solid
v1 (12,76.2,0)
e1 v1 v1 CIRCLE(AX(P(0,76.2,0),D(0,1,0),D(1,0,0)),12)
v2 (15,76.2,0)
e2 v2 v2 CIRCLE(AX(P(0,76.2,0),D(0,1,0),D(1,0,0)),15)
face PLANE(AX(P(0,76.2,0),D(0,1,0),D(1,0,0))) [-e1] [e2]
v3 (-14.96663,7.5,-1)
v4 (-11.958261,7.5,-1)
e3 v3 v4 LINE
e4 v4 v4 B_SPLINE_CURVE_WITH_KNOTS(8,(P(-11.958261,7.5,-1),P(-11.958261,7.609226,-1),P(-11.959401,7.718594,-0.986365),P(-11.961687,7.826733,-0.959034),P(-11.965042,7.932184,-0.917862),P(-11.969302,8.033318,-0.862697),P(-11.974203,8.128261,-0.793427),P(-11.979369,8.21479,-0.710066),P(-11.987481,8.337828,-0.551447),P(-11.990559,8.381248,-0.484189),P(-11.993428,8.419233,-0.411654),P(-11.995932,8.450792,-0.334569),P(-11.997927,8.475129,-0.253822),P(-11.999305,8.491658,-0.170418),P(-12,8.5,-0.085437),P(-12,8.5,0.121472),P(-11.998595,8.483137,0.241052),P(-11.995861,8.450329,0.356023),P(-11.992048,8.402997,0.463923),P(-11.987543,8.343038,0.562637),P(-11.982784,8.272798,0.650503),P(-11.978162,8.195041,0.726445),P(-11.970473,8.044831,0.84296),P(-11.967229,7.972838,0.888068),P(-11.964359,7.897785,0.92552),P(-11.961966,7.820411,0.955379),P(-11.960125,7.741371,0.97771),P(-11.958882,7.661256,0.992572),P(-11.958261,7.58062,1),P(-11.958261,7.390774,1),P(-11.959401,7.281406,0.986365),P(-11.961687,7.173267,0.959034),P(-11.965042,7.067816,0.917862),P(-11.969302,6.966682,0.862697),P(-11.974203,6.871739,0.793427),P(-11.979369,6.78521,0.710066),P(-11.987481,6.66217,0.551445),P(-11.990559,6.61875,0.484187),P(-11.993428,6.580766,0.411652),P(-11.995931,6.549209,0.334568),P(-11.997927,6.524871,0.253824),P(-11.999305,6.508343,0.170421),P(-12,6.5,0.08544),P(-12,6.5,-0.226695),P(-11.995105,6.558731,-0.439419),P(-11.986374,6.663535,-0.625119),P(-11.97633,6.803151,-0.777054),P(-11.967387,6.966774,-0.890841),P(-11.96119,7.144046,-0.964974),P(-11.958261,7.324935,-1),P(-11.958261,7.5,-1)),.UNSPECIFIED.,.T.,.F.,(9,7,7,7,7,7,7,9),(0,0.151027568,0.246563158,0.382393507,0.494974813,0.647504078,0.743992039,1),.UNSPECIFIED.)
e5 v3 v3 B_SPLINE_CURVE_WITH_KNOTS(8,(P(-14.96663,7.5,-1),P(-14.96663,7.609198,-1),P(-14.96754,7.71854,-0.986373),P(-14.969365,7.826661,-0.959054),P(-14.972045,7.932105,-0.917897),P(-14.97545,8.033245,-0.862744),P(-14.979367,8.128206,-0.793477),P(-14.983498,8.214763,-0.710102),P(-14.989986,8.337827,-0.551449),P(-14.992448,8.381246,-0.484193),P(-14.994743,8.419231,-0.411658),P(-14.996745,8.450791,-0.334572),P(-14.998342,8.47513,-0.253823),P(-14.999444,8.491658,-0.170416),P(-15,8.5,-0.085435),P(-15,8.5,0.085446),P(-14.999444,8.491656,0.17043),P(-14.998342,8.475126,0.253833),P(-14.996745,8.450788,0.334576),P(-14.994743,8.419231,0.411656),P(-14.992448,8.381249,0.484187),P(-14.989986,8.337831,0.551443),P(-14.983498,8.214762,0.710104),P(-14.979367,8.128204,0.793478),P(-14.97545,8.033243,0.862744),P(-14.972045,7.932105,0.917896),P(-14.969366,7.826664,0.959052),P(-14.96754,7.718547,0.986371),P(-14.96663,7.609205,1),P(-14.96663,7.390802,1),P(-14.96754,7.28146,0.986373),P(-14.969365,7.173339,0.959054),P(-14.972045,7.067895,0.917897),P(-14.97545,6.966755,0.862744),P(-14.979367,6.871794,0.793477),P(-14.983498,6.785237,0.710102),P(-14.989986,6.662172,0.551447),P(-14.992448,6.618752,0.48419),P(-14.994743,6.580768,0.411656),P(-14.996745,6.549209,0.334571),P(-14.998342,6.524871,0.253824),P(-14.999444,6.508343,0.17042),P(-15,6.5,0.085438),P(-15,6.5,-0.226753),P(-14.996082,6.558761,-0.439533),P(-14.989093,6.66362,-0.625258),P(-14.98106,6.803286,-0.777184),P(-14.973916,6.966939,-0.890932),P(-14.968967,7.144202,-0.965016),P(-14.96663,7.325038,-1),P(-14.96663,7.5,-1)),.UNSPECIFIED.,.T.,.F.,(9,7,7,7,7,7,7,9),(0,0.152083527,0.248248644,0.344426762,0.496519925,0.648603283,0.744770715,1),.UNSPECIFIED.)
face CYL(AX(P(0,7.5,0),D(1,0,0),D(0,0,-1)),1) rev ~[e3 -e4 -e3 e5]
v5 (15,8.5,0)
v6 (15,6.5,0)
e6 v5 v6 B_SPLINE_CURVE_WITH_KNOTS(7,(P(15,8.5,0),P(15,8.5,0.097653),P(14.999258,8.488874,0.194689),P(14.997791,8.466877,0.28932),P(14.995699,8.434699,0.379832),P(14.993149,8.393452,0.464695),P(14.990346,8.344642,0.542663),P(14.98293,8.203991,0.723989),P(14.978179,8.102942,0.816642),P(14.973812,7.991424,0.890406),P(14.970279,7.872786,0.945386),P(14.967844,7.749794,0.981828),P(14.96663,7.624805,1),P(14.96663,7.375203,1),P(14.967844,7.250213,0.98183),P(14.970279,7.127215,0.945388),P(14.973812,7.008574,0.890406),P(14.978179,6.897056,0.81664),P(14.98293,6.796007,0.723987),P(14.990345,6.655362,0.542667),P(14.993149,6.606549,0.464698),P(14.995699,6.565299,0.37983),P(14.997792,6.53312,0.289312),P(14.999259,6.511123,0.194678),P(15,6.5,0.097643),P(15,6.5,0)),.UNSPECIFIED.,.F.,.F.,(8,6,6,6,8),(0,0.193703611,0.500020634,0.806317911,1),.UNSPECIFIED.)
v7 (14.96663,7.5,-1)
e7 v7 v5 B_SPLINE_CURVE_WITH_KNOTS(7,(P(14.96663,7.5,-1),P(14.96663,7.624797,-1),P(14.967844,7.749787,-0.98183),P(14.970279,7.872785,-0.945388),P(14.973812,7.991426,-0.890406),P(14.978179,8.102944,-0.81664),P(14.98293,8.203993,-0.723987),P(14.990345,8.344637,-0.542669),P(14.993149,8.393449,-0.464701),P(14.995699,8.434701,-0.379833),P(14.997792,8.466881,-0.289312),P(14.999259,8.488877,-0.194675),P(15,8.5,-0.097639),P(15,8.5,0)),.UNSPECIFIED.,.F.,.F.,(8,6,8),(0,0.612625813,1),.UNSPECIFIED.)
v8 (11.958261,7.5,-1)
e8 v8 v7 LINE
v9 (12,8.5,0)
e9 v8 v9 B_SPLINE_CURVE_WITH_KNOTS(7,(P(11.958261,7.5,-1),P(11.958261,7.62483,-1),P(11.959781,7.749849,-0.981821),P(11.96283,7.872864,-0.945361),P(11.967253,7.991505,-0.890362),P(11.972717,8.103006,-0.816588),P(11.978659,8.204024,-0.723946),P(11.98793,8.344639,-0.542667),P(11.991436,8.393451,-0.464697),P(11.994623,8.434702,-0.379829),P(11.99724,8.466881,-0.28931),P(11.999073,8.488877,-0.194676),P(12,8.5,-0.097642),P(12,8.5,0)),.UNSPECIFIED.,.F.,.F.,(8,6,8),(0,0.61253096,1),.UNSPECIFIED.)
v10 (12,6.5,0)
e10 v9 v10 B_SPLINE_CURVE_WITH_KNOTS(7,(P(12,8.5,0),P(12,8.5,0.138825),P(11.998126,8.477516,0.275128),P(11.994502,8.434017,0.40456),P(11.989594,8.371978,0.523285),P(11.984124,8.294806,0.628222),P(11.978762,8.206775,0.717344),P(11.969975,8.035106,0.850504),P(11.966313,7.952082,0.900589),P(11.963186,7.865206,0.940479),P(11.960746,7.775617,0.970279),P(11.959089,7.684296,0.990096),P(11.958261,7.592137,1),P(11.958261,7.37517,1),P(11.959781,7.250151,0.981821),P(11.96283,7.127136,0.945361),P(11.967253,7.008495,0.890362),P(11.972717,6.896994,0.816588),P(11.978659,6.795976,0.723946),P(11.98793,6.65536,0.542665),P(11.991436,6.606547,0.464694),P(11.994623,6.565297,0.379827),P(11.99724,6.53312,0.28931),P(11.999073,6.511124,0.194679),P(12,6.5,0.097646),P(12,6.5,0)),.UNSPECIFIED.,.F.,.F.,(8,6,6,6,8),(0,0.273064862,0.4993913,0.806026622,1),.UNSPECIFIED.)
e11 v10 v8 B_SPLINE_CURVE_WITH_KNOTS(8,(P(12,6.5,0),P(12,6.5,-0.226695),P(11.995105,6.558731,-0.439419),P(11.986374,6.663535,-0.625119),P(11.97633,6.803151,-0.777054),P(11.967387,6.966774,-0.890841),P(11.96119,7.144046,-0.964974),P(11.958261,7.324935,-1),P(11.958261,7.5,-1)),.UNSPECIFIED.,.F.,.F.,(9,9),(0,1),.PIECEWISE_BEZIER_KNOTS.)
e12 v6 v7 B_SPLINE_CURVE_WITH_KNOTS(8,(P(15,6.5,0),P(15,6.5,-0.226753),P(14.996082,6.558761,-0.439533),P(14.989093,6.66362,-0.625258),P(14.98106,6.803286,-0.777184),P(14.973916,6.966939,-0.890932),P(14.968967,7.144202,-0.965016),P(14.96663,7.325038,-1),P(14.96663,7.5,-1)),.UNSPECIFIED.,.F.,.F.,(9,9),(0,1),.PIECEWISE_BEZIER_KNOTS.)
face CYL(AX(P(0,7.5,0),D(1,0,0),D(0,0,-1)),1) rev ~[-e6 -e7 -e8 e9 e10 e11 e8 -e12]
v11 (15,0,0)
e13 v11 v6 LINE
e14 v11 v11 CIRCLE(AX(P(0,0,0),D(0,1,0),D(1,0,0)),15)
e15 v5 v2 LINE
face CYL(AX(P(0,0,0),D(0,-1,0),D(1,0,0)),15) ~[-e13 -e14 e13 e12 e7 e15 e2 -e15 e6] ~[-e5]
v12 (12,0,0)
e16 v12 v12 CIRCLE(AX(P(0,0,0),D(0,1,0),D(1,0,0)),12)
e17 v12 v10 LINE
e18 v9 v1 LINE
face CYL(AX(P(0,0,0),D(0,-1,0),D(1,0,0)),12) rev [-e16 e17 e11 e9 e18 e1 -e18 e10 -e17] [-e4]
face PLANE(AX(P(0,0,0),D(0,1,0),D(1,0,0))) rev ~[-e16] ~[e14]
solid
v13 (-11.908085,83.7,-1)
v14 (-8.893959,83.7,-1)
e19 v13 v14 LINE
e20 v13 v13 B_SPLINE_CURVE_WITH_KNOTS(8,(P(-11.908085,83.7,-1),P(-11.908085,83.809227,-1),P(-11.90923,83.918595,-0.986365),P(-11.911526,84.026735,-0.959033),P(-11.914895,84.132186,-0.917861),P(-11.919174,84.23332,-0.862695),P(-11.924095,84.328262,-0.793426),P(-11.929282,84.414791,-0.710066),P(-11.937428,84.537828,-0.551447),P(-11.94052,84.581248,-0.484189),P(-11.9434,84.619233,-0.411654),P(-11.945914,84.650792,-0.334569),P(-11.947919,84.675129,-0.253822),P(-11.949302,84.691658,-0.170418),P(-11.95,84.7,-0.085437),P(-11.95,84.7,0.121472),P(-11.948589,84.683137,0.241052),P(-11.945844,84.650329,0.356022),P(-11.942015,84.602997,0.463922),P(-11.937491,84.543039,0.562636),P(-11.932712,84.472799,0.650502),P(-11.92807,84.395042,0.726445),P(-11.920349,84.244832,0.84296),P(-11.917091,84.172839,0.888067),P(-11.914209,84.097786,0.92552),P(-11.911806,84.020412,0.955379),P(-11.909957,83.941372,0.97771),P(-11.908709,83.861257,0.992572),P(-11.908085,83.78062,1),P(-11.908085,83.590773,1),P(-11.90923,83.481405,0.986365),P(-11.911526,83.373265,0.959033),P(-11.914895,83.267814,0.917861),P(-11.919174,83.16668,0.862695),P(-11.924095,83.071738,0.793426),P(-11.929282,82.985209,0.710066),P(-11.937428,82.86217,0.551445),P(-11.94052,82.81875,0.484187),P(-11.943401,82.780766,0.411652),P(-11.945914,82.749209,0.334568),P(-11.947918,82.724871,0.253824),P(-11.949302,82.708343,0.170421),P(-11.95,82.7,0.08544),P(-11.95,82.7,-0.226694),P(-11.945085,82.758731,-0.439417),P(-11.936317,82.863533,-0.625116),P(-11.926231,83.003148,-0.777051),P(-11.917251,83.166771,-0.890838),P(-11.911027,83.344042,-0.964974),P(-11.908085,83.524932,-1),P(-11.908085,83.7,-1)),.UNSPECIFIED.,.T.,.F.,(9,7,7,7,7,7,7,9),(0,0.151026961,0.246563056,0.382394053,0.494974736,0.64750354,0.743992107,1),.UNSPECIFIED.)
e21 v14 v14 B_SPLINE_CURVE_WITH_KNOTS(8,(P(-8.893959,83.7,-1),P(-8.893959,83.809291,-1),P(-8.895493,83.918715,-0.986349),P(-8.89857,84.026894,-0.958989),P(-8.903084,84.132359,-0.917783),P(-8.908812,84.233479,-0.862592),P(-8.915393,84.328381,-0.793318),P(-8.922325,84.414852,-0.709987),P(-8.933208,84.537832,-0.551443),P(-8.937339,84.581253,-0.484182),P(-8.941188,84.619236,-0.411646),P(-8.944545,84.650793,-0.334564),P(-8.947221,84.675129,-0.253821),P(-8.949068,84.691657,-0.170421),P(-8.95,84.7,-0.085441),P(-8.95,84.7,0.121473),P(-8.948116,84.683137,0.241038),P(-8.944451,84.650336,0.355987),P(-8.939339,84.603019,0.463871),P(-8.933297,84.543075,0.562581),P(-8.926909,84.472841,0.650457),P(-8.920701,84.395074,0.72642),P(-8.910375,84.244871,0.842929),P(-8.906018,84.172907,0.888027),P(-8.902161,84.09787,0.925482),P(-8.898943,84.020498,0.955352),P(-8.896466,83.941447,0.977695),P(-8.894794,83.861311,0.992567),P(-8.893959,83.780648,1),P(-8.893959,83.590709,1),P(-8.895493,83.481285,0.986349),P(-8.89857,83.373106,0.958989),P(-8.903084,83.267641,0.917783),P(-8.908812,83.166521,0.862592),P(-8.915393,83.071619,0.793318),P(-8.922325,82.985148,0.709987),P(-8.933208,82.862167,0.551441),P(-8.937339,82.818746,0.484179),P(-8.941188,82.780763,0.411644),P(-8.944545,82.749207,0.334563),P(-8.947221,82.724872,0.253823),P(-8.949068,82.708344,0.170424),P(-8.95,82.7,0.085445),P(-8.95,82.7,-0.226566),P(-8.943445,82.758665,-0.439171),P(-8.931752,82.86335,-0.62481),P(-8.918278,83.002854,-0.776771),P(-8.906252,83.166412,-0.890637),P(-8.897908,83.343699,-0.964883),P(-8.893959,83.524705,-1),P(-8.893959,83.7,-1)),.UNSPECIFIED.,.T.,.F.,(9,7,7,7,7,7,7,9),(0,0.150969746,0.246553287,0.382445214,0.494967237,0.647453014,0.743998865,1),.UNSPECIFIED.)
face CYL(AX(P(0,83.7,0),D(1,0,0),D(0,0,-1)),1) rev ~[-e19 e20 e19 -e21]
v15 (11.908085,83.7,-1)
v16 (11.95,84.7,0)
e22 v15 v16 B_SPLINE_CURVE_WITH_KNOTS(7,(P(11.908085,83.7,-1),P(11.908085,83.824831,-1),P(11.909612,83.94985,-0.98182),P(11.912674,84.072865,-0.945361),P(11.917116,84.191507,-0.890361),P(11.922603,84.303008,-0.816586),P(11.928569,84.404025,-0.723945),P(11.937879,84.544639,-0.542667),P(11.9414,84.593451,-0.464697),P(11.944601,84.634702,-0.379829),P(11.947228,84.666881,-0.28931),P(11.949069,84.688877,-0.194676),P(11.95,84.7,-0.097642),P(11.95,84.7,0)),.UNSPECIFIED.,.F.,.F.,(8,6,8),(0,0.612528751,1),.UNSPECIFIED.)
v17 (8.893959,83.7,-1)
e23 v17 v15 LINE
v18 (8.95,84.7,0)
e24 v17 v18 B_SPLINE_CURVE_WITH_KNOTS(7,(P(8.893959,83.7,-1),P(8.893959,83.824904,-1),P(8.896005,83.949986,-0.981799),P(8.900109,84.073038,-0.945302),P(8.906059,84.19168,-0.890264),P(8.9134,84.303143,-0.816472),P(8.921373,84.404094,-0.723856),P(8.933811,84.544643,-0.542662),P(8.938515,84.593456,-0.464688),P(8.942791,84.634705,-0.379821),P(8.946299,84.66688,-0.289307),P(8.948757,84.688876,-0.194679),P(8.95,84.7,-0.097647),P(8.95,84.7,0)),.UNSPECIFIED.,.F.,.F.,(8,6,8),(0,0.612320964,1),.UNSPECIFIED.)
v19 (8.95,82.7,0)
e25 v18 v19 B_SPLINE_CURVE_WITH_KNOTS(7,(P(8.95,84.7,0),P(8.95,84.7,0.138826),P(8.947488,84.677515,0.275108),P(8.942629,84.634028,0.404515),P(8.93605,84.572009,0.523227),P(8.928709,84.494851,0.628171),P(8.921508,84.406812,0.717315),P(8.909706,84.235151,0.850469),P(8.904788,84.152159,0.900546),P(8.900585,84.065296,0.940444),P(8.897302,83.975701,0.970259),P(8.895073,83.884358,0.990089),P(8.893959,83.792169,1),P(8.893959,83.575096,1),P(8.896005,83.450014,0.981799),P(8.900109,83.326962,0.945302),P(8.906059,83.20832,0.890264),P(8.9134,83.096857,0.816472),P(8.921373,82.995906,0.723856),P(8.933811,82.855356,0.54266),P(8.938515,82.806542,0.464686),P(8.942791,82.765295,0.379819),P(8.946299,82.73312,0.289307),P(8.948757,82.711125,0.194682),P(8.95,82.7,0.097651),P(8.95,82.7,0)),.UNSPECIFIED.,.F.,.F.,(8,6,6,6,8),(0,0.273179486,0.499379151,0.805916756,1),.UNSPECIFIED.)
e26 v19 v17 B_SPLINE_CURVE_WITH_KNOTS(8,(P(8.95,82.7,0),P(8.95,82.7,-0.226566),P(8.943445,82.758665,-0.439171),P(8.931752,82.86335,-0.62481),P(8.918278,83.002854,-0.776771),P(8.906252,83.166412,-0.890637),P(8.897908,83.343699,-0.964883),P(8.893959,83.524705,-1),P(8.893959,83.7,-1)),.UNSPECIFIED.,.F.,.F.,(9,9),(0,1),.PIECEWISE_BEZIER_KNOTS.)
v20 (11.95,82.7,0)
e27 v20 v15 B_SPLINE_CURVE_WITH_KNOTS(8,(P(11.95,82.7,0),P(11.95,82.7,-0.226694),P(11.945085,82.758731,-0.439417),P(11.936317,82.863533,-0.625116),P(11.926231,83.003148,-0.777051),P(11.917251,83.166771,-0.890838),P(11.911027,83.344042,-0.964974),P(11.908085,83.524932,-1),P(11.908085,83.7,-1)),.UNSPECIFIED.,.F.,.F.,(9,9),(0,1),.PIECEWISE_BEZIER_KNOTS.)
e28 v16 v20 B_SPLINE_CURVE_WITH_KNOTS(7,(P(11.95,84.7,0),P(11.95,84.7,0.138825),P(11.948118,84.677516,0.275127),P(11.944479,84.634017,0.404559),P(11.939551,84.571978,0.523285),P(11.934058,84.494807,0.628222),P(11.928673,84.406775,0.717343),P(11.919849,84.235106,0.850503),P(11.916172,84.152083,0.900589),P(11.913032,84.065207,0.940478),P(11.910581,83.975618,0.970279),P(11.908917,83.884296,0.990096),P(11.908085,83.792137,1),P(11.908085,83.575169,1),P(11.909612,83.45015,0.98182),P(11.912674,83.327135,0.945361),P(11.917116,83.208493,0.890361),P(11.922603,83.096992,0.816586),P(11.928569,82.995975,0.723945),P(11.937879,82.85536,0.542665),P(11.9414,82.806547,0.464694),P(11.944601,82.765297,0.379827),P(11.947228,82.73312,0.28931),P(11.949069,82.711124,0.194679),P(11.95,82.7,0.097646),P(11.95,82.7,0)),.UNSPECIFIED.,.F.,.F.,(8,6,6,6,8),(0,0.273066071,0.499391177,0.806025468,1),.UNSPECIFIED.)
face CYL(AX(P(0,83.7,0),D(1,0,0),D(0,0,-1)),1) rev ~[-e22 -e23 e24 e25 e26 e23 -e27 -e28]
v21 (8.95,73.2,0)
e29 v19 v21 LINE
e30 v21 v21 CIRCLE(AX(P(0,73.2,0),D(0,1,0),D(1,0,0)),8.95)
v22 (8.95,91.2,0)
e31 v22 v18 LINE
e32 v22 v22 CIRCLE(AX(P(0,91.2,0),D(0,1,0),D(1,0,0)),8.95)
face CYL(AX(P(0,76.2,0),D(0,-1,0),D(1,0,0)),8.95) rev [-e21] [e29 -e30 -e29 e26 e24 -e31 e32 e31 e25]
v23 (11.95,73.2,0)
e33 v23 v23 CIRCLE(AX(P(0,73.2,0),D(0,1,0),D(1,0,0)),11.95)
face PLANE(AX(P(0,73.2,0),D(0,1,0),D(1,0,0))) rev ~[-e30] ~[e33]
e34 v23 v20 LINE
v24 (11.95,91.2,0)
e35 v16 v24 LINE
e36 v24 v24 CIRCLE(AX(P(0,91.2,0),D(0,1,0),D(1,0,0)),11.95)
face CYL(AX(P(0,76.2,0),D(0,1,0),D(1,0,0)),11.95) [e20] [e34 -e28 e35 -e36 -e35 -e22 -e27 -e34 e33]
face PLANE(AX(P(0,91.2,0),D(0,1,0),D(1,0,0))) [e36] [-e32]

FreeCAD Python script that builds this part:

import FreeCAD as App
import Part
import Sketcher

V = App.Vector

doc = App.newDocument("Part")
body = doc.addObject("PartDesign::Body", "Body")

sketch1 = body.newObject("Sketcher::SketchObject", "Sketch")
sketch1.AttachmentSupport = (doc.getObject("XZ_Plane"), [""])
sketch1.MapMode = "FlatFace"
sketch1.addGeometry([
    Part.Circle(V(0, 0, 0), V(0, 0, 1), 15),
    Part.Circle(V(0, 0, 0), V(0, 0, 1), 12),
], False)
sketch1.addConstraint([
    Sketcher.Constraint("Coincident", 0, 3, -1, 1),
    Sketcher.Constraint("Coincident", 1, 3, -1, 1),
    Sketcher.Constraint("Diameter", 0, 30.0),
    Sketcher.Constraint("Diameter", 1, 24.0),
])
pad1 = body.newObject("PartDesign::Pad", "Pad")
pad1.Profile = sketch1
pad1.Length = 76.2
pad1.Reversed = True
body2 = doc.addObject("PartDesign::Body", "Body001")

sketch2 = body2.newObject("Sketcher::SketchObject", "Sketch001")
sketch2.AttachmentSupport = (doc.getObject("XZ_Plane001"), [""])
sketch2.MapMode = "FlatFace"
sketch2.AttachmentOffset = App.Placement(V(0, 0, -76.2), App.Rotation())
sketch2.addGeometry([
    Part.Circle(V(0, 0, 0), V(0, 0, 1), 12),
    Part.Circle(V(0, 0, 0), V(0, 0, 1), 9),
], False)
sketch2.addConstraint([
    Sketcher.Constraint("Coincident", 0, 3, -1, 1),
    Sketcher.Constraint("Coincident", 1, 3, -1, 1),
    Sketcher.Constraint("Diameter", 0, 23.9),
    Sketcher.Constraint("Diameter", 1, 17.9),
])
pad2 = body2.newObject("PartDesign::Pad", "Pad001")
pad2.Profile = sketch2
pad2.Type = "TwoLengths"
pad2.Length = 15
pad2.Length2 = 3
pad2.Reversed = True
body3 = doc.addObject("PartDesign::Body", "Body002")
body3.AllowCompound = True

sketch3 = body3.newObject("Sketcher::SketchObject", "Sketch002")
sketch3.AttachmentSupport = (doc.getObject("YZ_Plane002"), [""])
sketch3.MapMode = "FlatFace"
sketch3.addGeometry([
    Part.Circle(V(83.7, 0, 0), V(0, 0, 1), 1),
    Part.Circle(V(7.5, 0, 0), V(0, 0, 1), 1),
], False)
sketch3.addConstraint([
    Sketcher.Constraint("Equal", 0, 1),
    Sketcher.Constraint("PointOnObject", 0, 3, -1),
    Sketcher.Constraint("PointOnObject", 1, 3, -1),
    Sketcher.Constraint("Diameter", 0, 2.0),
    Sketcher.Constraint("DistanceX", -1, 1, 0, 3, 83.7),
    Sketcher.Constraint("DistanceX", -1, 1, 1, 3, 7.5),
])
pad3 = body3.newObject("PartDesign::Pad", "Pad002")
pad3.Profile = sketch3
pad3.Type = "TwoLengths"
pad3.Length = 16
pad3.Length2 = 16
doc.recompute()

body4 = doc.addObject("PartDesign::Body", "Body003")
body4.BaseFeature = body3
boolean = body.newObject("PartDesign::Boolean", "Boolean")
boolean.Type = "Cut"
boolean.addObjects([body4])
doc.recompute()

boolean2 = body2.newObject("PartDesign::Boolean", "Boolean001")
boolean2.Type = "Cut"
boolean2.addObjects([body3])

doc.recompute()
